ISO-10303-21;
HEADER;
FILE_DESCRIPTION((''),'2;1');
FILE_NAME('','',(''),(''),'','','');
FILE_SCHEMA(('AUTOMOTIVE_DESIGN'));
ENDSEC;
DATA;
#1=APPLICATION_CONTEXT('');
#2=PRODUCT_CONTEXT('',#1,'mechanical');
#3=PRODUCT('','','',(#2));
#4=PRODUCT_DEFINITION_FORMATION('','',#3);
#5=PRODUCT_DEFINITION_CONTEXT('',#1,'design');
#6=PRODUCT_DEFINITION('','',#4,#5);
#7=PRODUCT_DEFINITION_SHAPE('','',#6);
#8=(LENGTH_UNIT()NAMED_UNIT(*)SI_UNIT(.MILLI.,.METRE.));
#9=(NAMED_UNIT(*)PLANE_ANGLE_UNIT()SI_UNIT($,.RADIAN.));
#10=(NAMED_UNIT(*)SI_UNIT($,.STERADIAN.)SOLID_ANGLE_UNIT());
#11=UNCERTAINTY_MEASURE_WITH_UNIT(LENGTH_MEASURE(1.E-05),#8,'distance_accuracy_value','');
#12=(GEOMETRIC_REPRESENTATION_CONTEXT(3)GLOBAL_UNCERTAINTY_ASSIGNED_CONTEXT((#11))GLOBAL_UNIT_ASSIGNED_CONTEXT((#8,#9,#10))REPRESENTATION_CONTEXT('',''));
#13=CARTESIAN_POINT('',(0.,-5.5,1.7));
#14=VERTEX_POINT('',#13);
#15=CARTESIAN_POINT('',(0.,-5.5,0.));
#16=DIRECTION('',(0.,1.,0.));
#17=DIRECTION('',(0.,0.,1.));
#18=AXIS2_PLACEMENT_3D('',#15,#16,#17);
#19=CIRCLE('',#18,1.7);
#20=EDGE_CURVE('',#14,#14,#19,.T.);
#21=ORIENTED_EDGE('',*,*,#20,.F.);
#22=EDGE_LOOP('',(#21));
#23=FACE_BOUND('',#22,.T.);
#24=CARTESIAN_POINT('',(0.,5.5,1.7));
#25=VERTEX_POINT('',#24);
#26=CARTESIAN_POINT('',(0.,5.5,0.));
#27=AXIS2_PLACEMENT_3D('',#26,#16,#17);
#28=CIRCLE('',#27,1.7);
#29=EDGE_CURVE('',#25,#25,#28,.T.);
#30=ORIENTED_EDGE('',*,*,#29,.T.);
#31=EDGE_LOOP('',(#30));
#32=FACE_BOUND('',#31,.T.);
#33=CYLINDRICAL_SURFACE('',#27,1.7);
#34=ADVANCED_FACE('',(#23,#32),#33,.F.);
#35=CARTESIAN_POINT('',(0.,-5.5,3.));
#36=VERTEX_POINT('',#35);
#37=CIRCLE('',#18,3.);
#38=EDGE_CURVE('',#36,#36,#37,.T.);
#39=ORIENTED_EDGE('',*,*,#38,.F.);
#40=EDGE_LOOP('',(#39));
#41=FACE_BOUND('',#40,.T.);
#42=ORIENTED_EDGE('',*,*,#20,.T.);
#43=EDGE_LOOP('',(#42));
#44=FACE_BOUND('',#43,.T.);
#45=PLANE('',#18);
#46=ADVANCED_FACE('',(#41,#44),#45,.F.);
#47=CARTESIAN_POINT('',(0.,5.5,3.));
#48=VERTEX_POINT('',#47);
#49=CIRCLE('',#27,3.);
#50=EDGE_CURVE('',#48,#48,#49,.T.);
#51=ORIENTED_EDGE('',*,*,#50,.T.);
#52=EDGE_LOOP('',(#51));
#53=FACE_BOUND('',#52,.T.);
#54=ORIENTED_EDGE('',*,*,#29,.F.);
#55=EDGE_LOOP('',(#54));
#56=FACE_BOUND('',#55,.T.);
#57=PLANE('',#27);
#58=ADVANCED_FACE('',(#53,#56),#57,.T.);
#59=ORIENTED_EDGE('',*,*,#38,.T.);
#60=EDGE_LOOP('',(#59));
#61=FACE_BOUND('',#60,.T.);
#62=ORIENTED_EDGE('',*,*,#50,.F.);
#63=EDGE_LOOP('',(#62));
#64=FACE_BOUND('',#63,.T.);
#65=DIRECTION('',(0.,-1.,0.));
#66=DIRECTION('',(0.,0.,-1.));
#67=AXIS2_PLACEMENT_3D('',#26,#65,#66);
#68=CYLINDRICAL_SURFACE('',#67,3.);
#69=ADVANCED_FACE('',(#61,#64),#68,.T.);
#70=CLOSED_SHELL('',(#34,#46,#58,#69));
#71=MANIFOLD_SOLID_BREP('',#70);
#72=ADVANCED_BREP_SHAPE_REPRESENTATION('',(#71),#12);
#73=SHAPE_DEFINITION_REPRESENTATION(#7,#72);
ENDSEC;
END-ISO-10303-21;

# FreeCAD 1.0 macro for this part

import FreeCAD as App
import Part
import Sketcher

V = App.Vector
Q = App.Units.Quantity

doc = App.newDocument("Part")
params = doc.addObject("Spreadsheet::Sheet", "Params")
for row, (alias, value) in enumerate([
    ("sketch1_diameter", "6 mm"),
    ("pad1_length", "11 mm"),
    ("sketch2_diameter", "3.4 mm"),
    ("hole_diameter", "3.4 mm"),
], start=1):
    params.set(f"A{row}", alias)
    params.set(f"B{row}", "=" + value)
    params.setAlias(f"B{row}", alias)

body = doc.addObject("PartDesign::Body", "Body")

sketch1 = body.newObject("Sketcher::SketchObject", "Sketch")
sketch1.AttachmentSupport = (doc.getObject("XZ_Plane"), [""])
sketch1.MapMode = "FlatFace"
sketch1.addGeometry(Part.Circle(V(0, 0, 0), V(0, 0, 1), 3), False)
sketch1.addConstraint([
    Sketcher.Constraint("Coincident", 0, 3, -1, 1),
    Sketcher.Constraint("Diameter", 0, Q("6 mm")),
])
sketch1.setExpression("Constraints[1]", "Params.sketch1_diameter")
pad1 = body.newObject("PartDesign::Pad", "Pad")
pad1.Profile = sketch1
pad1.setExpression("Length", "Params.pad1_length")
pad1.Midplane = True

sketch2 = body.newObject("Sketcher::SketchObject", "Sketch001")
sketch2.AttachmentSupport = (doc.getObject("XZ_Plane"), [""])
sketch2.MapMode = "FlatFace"
sketch2.AttachmentOffset = App.Placement(V(0, 0, -5.5), App.Rotation())
sketch2.addGeometry(Part.Circle(V(0, 0, 0), V(0, 0, 1), 1.7), False)
sketch2.addConstraint([
    Sketcher.Constraint("Coincident", 0, 3, -1, 1),
    Sketcher.Constraint("Diameter", 0, Q("3.4 mm")),
])
sketch2.setExpression("Constraints[1]", "Params.sketch2_diameter")
doc.recompute()
hole = body.newObject("PartDesign::Hole", "Hole")
hole.Profile = sketch2
hole.ThreadType = "None"
hole.setExpression("Diameter", "Params.hole_diameter")
hole.DepthType = "ThroughAll"
hole.Reversed = True

doc.recompute()
